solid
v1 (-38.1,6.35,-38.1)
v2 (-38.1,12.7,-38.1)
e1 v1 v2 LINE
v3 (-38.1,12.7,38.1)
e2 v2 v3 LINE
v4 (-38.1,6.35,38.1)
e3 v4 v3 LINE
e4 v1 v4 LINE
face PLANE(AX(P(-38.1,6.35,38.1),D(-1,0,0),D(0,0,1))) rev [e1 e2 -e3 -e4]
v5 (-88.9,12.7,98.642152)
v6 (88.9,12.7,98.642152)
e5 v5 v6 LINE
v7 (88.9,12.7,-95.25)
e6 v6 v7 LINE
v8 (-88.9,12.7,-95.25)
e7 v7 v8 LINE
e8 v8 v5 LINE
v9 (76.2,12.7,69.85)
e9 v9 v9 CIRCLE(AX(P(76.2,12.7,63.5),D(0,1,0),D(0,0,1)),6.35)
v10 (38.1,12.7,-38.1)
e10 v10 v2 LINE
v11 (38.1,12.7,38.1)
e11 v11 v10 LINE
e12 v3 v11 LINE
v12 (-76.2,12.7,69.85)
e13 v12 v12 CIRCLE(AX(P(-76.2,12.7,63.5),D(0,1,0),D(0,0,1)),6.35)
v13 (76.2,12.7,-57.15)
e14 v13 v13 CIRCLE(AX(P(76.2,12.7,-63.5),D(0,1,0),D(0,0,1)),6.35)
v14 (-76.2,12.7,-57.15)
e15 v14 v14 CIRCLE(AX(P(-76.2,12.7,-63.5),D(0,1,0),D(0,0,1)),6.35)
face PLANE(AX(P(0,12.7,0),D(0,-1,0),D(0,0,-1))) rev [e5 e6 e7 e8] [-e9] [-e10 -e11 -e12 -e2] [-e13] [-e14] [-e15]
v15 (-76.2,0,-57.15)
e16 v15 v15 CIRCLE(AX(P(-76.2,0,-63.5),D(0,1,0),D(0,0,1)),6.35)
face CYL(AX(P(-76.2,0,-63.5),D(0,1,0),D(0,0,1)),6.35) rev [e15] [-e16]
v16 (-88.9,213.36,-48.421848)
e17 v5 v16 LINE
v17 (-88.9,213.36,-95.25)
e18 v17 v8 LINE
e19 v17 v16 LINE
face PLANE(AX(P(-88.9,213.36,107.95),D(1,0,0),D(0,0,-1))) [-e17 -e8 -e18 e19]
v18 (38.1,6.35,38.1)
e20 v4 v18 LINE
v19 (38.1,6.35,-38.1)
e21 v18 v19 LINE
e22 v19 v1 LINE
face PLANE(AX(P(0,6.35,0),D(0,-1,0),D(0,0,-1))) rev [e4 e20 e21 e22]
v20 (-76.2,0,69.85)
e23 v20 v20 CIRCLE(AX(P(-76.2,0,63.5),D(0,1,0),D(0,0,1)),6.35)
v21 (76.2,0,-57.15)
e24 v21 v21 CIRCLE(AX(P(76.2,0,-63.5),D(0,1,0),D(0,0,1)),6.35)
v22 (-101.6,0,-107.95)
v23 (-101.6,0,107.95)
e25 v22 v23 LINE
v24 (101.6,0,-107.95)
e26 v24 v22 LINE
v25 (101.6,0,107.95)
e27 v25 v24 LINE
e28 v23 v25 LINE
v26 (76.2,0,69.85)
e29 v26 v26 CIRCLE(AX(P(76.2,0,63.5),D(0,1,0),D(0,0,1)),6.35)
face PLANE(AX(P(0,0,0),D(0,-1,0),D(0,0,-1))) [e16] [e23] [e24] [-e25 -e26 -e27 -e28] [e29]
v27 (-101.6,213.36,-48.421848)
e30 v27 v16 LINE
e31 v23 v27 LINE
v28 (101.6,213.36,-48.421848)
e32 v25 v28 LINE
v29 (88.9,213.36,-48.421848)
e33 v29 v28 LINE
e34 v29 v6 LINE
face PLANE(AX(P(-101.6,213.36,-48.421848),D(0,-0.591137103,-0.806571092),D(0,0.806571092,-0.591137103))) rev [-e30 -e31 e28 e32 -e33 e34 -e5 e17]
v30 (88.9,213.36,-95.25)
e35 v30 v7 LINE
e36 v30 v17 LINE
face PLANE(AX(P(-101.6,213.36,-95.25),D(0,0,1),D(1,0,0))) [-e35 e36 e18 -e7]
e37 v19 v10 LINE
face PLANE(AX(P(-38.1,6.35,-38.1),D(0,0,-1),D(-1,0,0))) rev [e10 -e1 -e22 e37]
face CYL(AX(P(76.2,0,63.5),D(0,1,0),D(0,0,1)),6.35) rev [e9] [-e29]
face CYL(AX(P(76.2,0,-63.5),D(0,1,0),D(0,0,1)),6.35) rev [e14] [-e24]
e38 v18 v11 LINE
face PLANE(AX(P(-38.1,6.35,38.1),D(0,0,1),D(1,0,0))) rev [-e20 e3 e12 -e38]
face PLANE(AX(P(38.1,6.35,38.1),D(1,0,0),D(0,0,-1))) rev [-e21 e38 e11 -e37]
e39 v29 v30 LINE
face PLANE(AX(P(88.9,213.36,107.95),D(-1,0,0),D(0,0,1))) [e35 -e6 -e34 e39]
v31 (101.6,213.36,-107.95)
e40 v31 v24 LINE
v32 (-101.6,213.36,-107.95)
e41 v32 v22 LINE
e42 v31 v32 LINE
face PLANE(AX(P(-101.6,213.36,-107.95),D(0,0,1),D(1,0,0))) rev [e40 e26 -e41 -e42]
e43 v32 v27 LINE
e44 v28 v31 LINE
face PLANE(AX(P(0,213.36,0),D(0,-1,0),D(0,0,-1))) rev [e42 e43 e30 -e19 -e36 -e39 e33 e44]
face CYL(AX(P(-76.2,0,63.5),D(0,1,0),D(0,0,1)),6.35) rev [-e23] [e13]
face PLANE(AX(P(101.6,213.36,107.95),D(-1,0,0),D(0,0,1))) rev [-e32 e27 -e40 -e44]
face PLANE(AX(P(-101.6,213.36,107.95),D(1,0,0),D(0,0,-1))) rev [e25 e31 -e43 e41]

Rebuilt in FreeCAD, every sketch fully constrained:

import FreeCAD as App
import Part
import Sketcher
from FreeCAD import Vector
Q = App.Units.Quantity


def faces_at(feature, points):
    """Names of the faces that lie closest to the given points."""
    faces = feature.Shape.Faces
    near = lambda p: min(range(len(faces)), key=lambda i: faces[i].distToShape(Part.Vertex(*p))[0])
    return sorted({f"Face{near(p) + 1}" for p in points})

doc = App.newDocument("Part")
body = doc.addObject("PartDesign::Body", "Body")

# Sketch on XZ plane
sketch1 = body.newObject("Sketcher::SketchObject", "Sketch")
sketch1.AttachmentSupport = (doc.getObject("XZ_Plane"), [""])
sketch1.MapMode = "FlatFace"
sketch1.addGeometry(Part.LineSegment(Vector(-101.6, -107.95, 0), Vector(-101.6, 107.95, 0)), False)
sketch1.addGeometry(Part.LineSegment(Vector(-101.6, 107.95, 0), Vector(101.6, 107.95, 0)), False)
sketch1.addGeometry(Part.LineSegment(Vector(101.6, 107.95, 0), Vector(101.6, -107.95, 0)), False)
sketch1.addGeometry(Part.LineSegment(Vector(101.6, -107.95, 0), Vector(-101.6, -107.95, 0)), False)
sketch1.addConstraint(Sketcher.Constraint("Coincident", 0, 2, 1, 1))
sketch1.addConstraint(Sketcher.Constraint("Coincident", 1, 2, 2, 1))
sketch1.addConstraint(Sketcher.Constraint("Coincident", 2, 2, 3, 1))
sketch1.addConstraint(Sketcher.Constraint("Coincident", 3, 2, 0, 1))
sketch1.addConstraint(Sketcher.Constraint("Vertical", 0))
sketch1.addConstraint(Sketcher.Constraint("Horizontal", 1))
sketch1.addConstraint(Sketcher.Constraint("Vertical", 2))
sketch1.addConstraint(Sketcher.Constraint("Horizontal", 3))
sketch1.addConstraint(Sketcher.Constraint("Symmetric", 0, 2, 2, 2, -1, 1))
sketch1.addConstraint(Sketcher.Constraint("DistanceX", 1, 1, 1, 2, Q("8 in")))
sketch1.addConstraint(Sketcher.Constraint("DistanceY", 0, 1, 0, 2, Q("8.5 in")))
pad1 = body.newObject("PartDesign::Pad", "Pad")
pad1.Profile = sketch1
pad1.Length = Q("8.4 in")
pad1.Reversed = True
doc.recompute()

thickness = body.newObject("PartDesign::Thickness", "Thickness")
thickness.Base = (pad1, faces_at(pad1, [(0, 213.36, 0), (0, 106.68, 107.95)]))
thickness.Value = Q("0.5 in")
thickness.Reversed = True
thickness.Join = "Intersection"

# Sketch on XZ plane
sketch2 = body.newObject("Sketcher::SketchObject", "Sketch001")
sketch2.AttachmentSupport = (doc.getObject("XZ_Plane"), [""])
sketch2.MapMode = "FlatFace"
sketch2.AttachmentOffset = App.Placement(Vector(0, 0, -0.5 * 25.4), App.Rotation())
sketch2.addGeometry(Part.LineSegment(Vector(-38.1, -38.1, 0), Vector(-38.1, 38.1, 0)), False)
sketch2.addGeometry(Part.LineSegment(Vector(-38.1, 38.1, 0), Vector(38.1, 38.1, 0)), False)
sketch2.addGeometry(Part.LineSegment(Vector(38.1, 38.1, 0), Vector(38.1, -38.1, 0)), False)
sketch2.addGeometry(Part.LineSegment(Vector(38.1, -38.1, 0), Vector(-38.1, -38.1, 0)), False)
sketch2.addConstraint(Sketcher.Constraint("Coincident", 0, 2, 1, 1))
sketch2.addConstraint(Sketcher.Constraint("Coincident", 1, 2, 2, 1))
sketch2.addConstraint(Sketcher.Constraint("Coincident", 2, 2, 3, 1))
sketch2.addConstraint(Sketcher.Constraint("Coincident", 3, 2, 0, 1))
sketch2.addConstraint(Sketcher.Constraint("Vertical", 0))
sketch2.addConstraint(Sketcher.Constraint("Horizontal", 1))
sketch2.addConstraint(Sketcher.Constraint("Vertical", 2))
sketch2.addConstraint(Sketcher.Constraint("Horizontal", 3))
sketch2.addConstraint(Sketcher.Constraint("Symmetric", 0, 2, 2, 2, -1, 1))
sketch2.addConstraint(Sketcher.Constraint("Equal", 3, 0))
sketch2.addConstraint(Sketcher.Constraint("DistanceX", 1, 1, 1, 2, Q("3 in")))
pocket1 = body.newObject("PartDesign::Pocket", "Pocket")
pocket1.Profile = sketch2
pocket1.Length = Q("0.25 in")
pocket1.Reversed = True

# Sketch on XZ plane
sketch3 = body.newObject("Sketcher::SketchObject", "Sketch002")
sketch3.AttachmentSupport = (doc.getObject("XZ_Plane"), [""])
sketch3.MapMode = "FlatFace"
sketch3.AttachmentOffset = App.Placement(Vector(0, 0, -0.5 * 25.4), App.Rotation())
sketch3.addGeometry(Part.Circle(Vector(-76.2, -63.5, 0), Vector(0, 0, 1), 6.35), False)
sketch3.addGeometry(Part.Circle(Vector(-76.2, 63.5, 0), Vector(0, 0, 1), 6.35), False)
sketch3.addGeometry(Part.Circle(Vector(76.2, -63.5, 0), Vector(0, 0, 1), 6.35), False)
sketch3.addGeometry(Part.Circle(Vector(76.2, 63.5, 0), Vector(0, 0, 1), 6.35), False)
sketch3.addConstraint(Sketcher.Constraint("Equal", 0, 1))
sketch3.addConstraint(Sketcher.Constraint("Equal", 1, 2))
sketch3.addConstraint(Sketcher.Constraint("Equal", 2, 3))
sketch3.addConstraint(Sketcher.Constraint("Symmetric", 1, 3, 2, 3, -1, 1))
sketch3.addConstraint(Sketcher.Constraint("Symmetric", 0, 3, 3, 3, -1, 1))
sketch3.addConstraint(Sketcher.Constraint("Symmetric", 0, 3, 2, 3, -2))
sketch3.addConstraint(Sketcher.Constraint("Diameter", 0, Q("0.5 in")))
sketch3.addConstraint(Sketcher.Constraint("DistanceX", 0, 3, -1, 1, Q("3 in")))
sketch3.addConstraint(Sketcher.Constraint("DistanceY", 0, 3, 1, 3, Q("5 in")))
pocket2 = body.newObject("PartDesign::Pocket", "Pocket001")
pocket2.Profile = sketch3
pocket2.Type = "ThroughAll"
pocket2.Reversed = True

# Sketch on YZ plane
sketch4 = body.newObject("Sketcher::SketchObject", "Sketch003")
sketch4.AttachmentSupport = (doc.getObject("YZ_Plane"), [""])
sketch4.MapMode = "FlatFace"
sketch4.AttachmentOffset = App.Placement(Vector(0, 0, 4 * 25.4), App.Rotation())
sketch4.addGeometry(Part.LineSegment(Vector(0, 107.95, 0), Vector(213.36, -48.421848, 0)), False)
sketch4.addGeometry(Part.LineSegment(Vector(213.36, -48.421848, 0), Vector(213.36, 107.95, 0)), False)
sketch4.addGeometry(Part.LineSegment(Vector(213.36, 107.95, 0), Vector(0, 107.95, 0)), False)
sketch4.addConstraint(Sketcher.Constraint("Coincident", 0, 2, 1, 1))
sketch4.addConstraint(Sketcher.Constraint("Coincident", 1, 2, 2, 1))
sketch4.addConstraint(Sketcher.Constraint("Coincident", 2, 2, 0, 1))
sketch4.addConstraint(Sketcher.Constraint("Vertical", 1))
sketch4.addConstraint(Sketcher.Constraint("Horizontal", 2))
sketch4.addConstraint(Sketcher.Constraint("PointOnObject", 2, 2, -2))
sketch4.addConstraint(Sketcher.Constraint("DistanceX", 2, 2, 2, 1, Q("8.4 in")))
sketch4.addConstraint(Sketcher.Constraint("DistanceY", -1, 1, 1, 2, Q("4.25 in")))
sketch4.addConstraint(Sketcher.Constraint("DistanceY", 1, 1, 1, 2, Q("156.371848 mm")))
pocket3 = body.newObject("PartDesign::Pocket", "Pocket002")
pocket3.Profile = sketch4
pocket3.Type = "ThroughAll"

doc.recompute()
